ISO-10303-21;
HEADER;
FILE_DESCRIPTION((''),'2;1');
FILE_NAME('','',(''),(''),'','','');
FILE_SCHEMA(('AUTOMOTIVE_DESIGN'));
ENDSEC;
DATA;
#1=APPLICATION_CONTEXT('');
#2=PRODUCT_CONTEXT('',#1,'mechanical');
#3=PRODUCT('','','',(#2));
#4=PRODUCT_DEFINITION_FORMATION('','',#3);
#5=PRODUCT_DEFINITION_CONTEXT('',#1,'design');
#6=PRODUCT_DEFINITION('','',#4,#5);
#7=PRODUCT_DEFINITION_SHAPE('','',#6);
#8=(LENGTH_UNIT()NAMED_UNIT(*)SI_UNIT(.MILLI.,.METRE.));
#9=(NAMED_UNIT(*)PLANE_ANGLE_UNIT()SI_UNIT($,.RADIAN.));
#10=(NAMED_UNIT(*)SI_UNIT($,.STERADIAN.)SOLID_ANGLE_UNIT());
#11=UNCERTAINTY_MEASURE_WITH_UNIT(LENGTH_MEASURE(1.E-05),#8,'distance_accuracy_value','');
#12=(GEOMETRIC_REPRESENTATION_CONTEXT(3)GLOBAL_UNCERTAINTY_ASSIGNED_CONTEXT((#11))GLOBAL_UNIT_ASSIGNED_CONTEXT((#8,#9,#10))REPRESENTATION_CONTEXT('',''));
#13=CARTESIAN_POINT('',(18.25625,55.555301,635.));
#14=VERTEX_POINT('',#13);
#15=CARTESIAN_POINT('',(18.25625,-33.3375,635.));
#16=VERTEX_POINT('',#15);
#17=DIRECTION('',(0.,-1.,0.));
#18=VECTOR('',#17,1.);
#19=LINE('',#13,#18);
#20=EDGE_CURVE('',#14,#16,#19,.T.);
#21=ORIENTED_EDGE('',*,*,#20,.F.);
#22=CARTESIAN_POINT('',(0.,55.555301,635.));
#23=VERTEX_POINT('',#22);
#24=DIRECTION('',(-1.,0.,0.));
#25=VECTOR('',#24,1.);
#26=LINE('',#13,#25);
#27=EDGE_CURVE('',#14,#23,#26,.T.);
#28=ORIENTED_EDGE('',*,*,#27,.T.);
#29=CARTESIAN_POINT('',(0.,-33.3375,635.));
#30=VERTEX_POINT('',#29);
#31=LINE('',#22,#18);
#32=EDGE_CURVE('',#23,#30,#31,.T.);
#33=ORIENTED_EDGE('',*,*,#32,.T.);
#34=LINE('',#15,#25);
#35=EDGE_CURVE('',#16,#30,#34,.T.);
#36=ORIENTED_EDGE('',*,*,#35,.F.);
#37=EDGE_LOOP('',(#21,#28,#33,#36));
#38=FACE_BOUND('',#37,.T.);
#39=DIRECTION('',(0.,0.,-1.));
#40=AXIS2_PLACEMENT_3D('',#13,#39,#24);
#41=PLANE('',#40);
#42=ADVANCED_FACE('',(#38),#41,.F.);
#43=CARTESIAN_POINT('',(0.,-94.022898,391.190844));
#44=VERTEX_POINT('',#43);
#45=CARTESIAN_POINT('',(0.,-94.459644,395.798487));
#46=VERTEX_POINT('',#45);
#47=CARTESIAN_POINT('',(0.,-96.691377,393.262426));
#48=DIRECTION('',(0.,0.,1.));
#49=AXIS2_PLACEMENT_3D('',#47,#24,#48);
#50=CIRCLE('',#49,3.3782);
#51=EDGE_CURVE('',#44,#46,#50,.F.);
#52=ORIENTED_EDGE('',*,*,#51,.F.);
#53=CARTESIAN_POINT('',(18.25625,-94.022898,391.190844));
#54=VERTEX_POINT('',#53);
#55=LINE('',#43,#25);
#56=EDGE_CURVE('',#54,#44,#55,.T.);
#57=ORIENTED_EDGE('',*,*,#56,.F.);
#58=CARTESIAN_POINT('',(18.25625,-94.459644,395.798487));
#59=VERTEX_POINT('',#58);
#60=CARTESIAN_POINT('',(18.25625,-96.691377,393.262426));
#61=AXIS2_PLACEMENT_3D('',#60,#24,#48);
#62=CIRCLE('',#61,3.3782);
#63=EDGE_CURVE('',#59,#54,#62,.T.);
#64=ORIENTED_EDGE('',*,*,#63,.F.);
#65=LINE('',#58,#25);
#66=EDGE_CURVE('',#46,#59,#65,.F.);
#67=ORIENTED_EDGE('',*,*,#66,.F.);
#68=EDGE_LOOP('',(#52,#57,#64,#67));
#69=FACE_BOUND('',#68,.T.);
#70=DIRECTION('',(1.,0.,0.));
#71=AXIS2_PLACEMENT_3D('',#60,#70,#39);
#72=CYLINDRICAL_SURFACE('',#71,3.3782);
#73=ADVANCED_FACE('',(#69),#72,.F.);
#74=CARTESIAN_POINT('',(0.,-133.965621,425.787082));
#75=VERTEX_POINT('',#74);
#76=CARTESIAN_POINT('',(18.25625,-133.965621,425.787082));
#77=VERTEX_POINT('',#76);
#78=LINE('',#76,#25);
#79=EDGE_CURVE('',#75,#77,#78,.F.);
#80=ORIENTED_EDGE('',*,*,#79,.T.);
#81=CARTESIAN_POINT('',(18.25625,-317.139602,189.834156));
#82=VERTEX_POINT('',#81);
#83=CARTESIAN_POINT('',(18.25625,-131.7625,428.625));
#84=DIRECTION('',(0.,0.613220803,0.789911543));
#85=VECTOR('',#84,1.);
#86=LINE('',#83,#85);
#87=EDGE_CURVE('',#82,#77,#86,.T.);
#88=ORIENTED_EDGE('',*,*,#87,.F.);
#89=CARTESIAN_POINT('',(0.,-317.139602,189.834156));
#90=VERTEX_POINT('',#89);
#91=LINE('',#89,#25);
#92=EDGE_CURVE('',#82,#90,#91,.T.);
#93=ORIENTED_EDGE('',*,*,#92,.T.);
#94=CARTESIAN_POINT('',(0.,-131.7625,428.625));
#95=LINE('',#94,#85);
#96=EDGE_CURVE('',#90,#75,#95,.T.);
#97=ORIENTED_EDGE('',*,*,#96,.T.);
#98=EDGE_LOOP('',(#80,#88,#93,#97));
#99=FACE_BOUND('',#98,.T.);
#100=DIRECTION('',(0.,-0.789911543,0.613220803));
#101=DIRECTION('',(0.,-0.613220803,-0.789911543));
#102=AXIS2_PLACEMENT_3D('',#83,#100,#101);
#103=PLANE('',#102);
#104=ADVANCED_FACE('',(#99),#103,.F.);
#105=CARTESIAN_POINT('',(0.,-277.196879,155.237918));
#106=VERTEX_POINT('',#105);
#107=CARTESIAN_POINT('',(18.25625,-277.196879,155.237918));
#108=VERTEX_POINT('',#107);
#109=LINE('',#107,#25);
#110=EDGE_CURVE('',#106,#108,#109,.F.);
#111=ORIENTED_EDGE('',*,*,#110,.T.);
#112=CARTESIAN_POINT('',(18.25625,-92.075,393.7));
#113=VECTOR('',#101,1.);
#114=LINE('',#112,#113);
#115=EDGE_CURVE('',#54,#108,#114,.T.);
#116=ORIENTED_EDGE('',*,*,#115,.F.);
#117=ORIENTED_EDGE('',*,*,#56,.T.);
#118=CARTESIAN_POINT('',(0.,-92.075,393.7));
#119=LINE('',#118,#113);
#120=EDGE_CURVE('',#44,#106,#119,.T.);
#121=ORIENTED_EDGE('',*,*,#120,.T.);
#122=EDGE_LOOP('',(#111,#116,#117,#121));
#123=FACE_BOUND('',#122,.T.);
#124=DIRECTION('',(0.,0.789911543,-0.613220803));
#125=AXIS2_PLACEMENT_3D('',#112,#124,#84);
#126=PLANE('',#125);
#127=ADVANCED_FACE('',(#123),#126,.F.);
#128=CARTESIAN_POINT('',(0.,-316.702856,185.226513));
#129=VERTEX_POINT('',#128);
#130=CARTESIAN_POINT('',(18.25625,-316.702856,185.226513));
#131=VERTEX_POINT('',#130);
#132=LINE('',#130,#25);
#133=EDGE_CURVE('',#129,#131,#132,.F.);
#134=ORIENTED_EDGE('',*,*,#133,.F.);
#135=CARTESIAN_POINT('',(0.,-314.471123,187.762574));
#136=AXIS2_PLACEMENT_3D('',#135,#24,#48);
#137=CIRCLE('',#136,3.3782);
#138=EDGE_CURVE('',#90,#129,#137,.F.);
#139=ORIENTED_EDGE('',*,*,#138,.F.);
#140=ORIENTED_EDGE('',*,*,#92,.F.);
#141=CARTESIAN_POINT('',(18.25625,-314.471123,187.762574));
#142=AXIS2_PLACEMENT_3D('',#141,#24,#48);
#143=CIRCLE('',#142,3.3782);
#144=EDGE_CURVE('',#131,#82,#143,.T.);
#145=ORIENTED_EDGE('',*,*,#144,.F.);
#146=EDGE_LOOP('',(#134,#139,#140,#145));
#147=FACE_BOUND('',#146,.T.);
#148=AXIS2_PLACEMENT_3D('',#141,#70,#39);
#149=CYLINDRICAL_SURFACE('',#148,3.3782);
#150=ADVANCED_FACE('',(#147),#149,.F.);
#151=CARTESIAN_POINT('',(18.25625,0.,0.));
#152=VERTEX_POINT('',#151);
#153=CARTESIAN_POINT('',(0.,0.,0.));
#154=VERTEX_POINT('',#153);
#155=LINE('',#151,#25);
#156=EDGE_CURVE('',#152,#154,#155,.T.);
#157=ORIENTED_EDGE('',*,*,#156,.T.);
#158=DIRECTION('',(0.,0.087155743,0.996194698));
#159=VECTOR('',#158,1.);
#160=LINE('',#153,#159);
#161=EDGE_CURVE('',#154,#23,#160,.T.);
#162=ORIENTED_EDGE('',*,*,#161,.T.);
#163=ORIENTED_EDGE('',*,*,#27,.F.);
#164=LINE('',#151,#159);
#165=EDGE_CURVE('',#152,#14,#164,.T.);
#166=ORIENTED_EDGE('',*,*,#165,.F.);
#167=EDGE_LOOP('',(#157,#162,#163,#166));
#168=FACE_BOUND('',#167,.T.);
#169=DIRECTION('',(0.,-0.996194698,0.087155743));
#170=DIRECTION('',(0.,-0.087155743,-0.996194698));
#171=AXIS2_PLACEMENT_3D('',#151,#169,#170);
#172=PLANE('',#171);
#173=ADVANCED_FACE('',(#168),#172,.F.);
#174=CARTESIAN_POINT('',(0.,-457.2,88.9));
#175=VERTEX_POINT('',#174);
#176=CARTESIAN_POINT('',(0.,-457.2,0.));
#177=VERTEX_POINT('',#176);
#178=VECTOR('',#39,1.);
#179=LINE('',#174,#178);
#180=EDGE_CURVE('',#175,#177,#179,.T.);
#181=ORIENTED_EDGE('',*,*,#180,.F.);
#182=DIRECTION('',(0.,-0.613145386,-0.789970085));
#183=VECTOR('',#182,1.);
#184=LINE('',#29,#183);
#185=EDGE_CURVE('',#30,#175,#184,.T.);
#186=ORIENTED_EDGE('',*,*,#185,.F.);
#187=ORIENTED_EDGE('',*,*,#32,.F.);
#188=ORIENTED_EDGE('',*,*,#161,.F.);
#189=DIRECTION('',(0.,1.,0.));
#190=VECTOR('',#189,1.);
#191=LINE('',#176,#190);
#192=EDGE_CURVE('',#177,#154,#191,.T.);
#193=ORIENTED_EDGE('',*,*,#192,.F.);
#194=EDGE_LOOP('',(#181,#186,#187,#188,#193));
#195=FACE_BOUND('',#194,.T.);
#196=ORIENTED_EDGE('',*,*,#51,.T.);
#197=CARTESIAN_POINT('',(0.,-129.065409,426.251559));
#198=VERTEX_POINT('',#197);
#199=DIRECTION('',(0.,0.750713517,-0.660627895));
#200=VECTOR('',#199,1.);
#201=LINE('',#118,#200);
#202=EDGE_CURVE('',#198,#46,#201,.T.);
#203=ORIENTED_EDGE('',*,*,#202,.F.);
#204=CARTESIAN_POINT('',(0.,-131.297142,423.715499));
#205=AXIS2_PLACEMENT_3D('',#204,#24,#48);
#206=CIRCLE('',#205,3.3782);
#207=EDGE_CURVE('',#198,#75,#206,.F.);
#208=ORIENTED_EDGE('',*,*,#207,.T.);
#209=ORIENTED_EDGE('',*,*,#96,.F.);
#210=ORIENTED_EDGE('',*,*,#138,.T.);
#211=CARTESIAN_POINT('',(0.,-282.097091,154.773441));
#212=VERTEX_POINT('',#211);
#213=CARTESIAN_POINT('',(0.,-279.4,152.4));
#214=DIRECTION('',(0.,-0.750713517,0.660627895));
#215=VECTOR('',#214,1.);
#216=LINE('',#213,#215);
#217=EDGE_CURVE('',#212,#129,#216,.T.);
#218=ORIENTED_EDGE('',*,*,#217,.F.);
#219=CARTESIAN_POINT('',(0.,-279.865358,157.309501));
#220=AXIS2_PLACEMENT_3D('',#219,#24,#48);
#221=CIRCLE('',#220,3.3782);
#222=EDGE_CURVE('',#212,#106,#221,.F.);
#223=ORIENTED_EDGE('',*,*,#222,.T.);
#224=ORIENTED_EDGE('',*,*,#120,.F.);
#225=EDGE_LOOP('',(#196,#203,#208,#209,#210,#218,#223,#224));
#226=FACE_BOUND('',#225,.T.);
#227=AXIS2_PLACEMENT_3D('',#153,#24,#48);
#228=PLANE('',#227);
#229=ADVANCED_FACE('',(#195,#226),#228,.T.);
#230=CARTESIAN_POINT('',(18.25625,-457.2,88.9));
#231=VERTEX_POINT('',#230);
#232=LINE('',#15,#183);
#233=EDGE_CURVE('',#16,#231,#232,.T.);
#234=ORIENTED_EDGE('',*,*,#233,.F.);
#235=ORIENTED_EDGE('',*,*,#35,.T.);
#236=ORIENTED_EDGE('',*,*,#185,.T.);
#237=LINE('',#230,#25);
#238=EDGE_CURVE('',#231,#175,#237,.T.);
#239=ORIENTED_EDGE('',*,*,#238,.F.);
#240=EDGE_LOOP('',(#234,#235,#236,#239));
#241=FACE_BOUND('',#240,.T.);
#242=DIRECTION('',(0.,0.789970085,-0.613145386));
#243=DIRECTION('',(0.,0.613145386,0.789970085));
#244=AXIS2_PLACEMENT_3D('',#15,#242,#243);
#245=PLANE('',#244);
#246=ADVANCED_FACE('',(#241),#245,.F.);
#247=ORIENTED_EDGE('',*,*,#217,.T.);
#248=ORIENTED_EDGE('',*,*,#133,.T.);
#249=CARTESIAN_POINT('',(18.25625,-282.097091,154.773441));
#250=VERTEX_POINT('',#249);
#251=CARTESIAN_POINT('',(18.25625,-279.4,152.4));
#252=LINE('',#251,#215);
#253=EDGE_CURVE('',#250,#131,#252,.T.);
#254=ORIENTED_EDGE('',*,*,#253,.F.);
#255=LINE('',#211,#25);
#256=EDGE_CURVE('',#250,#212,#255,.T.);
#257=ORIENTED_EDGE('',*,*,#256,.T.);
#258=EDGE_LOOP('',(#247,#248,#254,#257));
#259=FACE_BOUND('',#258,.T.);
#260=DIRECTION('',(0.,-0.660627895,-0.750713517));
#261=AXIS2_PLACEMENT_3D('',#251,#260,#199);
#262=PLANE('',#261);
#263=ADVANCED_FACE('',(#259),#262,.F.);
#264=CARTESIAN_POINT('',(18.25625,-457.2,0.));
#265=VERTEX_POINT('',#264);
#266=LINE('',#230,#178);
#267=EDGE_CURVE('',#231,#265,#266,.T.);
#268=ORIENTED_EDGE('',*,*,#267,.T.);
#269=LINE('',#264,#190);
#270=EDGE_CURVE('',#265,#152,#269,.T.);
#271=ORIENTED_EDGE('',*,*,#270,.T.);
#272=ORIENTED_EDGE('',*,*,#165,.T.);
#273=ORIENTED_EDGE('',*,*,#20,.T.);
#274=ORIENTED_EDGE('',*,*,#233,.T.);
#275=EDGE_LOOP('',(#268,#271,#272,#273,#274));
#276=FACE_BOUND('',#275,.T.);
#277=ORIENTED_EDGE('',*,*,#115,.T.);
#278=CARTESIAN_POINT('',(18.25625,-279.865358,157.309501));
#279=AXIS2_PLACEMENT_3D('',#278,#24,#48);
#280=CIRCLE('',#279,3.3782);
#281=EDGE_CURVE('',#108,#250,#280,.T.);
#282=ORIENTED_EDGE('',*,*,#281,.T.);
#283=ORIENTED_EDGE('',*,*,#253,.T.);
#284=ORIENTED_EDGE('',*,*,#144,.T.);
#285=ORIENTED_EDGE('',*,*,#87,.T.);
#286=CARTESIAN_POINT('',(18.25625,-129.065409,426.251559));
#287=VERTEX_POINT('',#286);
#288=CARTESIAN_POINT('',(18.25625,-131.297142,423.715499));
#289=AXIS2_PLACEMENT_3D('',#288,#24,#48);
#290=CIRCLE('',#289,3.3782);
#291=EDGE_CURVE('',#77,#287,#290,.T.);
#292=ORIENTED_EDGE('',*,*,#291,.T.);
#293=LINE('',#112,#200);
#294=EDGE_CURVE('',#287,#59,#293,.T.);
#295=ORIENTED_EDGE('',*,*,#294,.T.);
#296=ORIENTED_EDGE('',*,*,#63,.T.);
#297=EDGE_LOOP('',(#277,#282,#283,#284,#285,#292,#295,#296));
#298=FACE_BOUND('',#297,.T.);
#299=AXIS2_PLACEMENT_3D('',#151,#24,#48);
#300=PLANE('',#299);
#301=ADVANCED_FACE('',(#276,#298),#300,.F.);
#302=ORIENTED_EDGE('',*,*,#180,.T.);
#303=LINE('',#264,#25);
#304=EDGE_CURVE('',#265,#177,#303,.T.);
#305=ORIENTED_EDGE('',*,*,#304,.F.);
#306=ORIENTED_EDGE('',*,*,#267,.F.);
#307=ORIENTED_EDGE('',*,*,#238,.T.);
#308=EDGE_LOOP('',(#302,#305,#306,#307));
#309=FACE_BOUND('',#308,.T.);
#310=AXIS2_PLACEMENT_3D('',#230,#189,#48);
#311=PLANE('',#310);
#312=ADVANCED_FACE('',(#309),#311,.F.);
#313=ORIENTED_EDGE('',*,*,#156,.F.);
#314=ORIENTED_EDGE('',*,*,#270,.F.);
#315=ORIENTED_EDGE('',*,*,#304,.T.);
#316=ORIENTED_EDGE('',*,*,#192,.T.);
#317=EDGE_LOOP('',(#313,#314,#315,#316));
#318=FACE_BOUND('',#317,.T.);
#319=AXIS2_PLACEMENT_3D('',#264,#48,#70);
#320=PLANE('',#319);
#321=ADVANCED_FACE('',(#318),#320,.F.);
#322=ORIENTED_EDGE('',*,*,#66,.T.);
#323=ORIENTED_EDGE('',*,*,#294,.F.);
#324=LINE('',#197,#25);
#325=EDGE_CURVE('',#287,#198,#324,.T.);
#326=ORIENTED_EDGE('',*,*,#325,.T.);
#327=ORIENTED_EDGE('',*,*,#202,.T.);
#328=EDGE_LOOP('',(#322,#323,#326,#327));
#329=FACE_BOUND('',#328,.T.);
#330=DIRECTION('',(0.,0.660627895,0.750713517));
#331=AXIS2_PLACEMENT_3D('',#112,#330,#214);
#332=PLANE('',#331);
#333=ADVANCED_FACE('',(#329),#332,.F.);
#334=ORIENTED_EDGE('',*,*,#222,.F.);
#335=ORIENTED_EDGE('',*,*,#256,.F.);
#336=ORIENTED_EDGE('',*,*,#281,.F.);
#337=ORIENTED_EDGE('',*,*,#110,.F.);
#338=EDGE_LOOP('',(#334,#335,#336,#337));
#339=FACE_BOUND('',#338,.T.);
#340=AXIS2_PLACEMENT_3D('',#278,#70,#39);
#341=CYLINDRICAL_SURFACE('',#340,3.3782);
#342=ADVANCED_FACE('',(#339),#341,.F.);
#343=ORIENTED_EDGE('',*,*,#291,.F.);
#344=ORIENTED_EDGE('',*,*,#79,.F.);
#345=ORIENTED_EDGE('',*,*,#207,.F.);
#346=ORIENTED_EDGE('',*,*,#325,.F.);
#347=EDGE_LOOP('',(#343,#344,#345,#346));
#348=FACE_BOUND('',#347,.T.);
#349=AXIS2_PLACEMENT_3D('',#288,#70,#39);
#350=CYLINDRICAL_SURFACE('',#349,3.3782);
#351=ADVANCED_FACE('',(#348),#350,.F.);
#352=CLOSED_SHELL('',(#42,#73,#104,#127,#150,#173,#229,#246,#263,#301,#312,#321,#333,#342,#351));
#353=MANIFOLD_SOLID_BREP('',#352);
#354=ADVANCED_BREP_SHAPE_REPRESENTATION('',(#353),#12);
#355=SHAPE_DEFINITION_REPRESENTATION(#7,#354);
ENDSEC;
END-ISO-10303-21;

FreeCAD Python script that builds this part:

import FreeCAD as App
import Part
import Sketcher

V = App.Vector
Q = App.Units.Quantity


def edges_at(feature, points):
    """Names of the edges that pass closest to the given points."""
    edges = feature.Shape.Edges
    near = lambda p: min(range(len(edges)), key=lambda i: edges[i].distToShape(Part.Vertex(*p))[0])
    return sorted({f"Edge{near(p) + 1}" for p in points})

doc = App.newDocument("Part")
body = doc.addObject("PartDesign::Body", "Body")

sketch1 = body.newObject("Sketcher::SketchObject", "Sketch")
sketch1.AttachmentSupport = (doc.getObject("YZ_Plane"), [""])
sketch1.MapMode = "FlatFace"
sketch1.addGeometry(Part.LineSegment(V(0, 0, 0), V(56, 635, 0)), False)
sketch1.addGeometry(Part.LineSegment(V(56, 635, 0), V(-33, 635, 0)), False)
sketch1.addGeometry(Part.LineSegment(V(-33, 635, 0), V(-457, 89, 0)), False)
sketch1.addGeometry(Part.LineSegment(V(-457, 89, 0), V(-457, 0, 0)), False)
sketch1.addGeometry(Part.LineSegment(V(-457, 0, 0), V(0, 0, 0)), False)
sketch1.addConstraint(Sketcher.Constraint("Coincident", 0, 2, 1, 1))
sketch1.addConstraint(Sketcher.Constraint("Coincident", 1, 2, 2, 1))
sketch1.addConstraint(Sketcher.Constraint("Coincident", 2, 2, 3, 1))
sketch1.addConstraint(Sketcher.Constraint("Coincident", 3, 2, 4, 1))
sketch1.addConstraint(Sketcher.Constraint("Coincident", 4, 2, 0, 1))
sketch1.addConstraint(Sketcher.Constraint("Horizontal", 1))
sketch1.addConstraint(Sketcher.Constraint("Vertical", 3))
sketch1.addConstraint(Sketcher.Constraint("Horizontal", 4))
sketch1.addConstraint(Sketcher.Constraint("Coincident", 4, 2, -1, 1))
sketch1.addConstraint(Sketcher.Constraint("DistanceX", 4, 1, 4, 2, Q("18 in")))
sketch1.addConstraint(Sketcher.Constraint("DistanceY", 3, 2, 3, 1, Q("3.5 in")))
sketch1.addConstraint(Sketcher.Constraint("DistanceY", -1, 1, 0, 2, Q("25 in")))
sketch1.addConstraint(Sketcher.Constraint("Angle", 0, Q("85 deg")))
sketch1.addConstraint(Sketcher.Constraint("DistanceX", 1, 2, -1, 1, Q("1.3125 in")))
pad1 = body.newObject("PartDesign::Pad", "Pad")
pad1.Profile = sketch1
pad1.Length = Q("0.71875 in")

sketch2 = body.newObject("Sketcher::SketchObject", "Sketch001")
sketch2.AttachmentSupport = (doc.getObject("YZ_Plane"), [""])
sketch2.MapMode = "FlatFace"
sketch2.addGeometry(Part.LineSegment(V(-319, 187, 0), V(-132, 429, 0)), False)
sketch2.addGeometry(Part.LineSegment(V(-132, 429, 0), V(-92, 394, 0)), False)
sketch2.addGeometry(Part.LineSegment(V(-92, 394, 0), V(-279, 152, 0)), False)
sketch2.addGeometry(Part.LineSegment(V(-279, 152, 0), V(-319, 187, 0)), False)
sketch2.addConstraint(Sketcher.Constraint("Coincident", 0, 2, 1, 1))
sketch2.addConstraint(Sketcher.Constraint("Coincident", 1, 2, 2, 1))
sketch2.addConstraint(Sketcher.Constraint("Coincident", 2, 2, 3, 1))
sketch2.addConstraint(Sketcher.Constraint("Coincident", 3, 2, 0, 1))
sketch2.addConstraint(Sketcher.Constraint("Parallel", 0, 2))
sketch2.addConstraint(Sketcher.Constraint("Parallel", 1, 3))
sketch2.addConstraint(Sketcher.Constraint("DistanceX", 2, 2, -1, 1, Q("11 in")))
sketch2.addConstraint(Sketcher.Constraint("DistanceY", -1, 1, 2, 2, Q("6 in")))
sketch2.addConstraint(Sketcher.Constraint("DistanceY", -1, 1, 1, 2, Q("15.5 in")))
sketch2.addConstraint(Sketcher.Constraint("DistanceX", 0, 2, -1, 1, Q("5.1875 in")))
sketch2.addConstraint(Sketcher.Constraint("DistanceY", -1, 1, 0, 2, Q("16.875 in")))
sketch2.addConstraint(Sketcher.Constraint("DistanceX", 1, 2, -1, 1, Q("3.625 in")))
pocket1 = body.newObject("PartDesign::Pocket", "Pocket")
pocket1.Profile = sketch2
pocket1.Type = "ThroughAll"
pocket1.Reversed = True
doc.recompute()

fillet = body.newObject("PartDesign::Fillet", "Fillet")
fillet.Base = (pocket1, edges_at(pocket1, [
    (9.128, -319.087, 187.325),
    (9.128, -279.4, 152.4),
    (9.128, -92.075, 393.7),
    (9.128, -131.762, 428.625),
]))
fillet.Radius = Q("0.133 in")

doc.recompute()
